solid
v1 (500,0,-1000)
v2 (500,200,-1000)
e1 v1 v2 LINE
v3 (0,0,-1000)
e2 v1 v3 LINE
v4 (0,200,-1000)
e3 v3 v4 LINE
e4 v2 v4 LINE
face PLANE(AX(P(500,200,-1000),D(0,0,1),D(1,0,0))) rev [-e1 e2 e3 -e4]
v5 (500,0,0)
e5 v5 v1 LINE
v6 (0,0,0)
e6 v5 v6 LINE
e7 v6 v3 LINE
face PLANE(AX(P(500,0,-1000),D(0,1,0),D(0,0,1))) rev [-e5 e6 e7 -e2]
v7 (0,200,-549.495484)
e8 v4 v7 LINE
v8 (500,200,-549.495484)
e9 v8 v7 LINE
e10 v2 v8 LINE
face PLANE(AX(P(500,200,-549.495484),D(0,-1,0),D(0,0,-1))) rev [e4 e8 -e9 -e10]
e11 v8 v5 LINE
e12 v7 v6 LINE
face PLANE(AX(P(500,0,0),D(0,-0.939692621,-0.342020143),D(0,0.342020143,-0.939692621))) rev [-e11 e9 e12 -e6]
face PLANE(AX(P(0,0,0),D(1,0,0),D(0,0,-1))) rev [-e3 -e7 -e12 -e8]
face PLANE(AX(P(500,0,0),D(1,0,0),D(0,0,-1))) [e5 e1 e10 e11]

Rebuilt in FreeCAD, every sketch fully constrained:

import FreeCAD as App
import Part
import Sketcher
Q = App.Units.Quantity


def add_polygon(sketch, points):
    """Adds a closed chain of lines whose ends are joined by coincident constraints."""
    first, n = sketch.GeometryCount, len(points)
    for a, b in zip(points, points[1:] + points[:1]):
        sketch.addGeometry(Part.LineSegment(App.Vector(*a, 0), App.Vector(*b, 0)), False)
    for i in range(n):
        sketch.addConstraint(Sketcher.Constraint("Coincident", first + i, 2, first + (i + 1) % n, 1))

doc = App.newDocument("Part")
body = doc.addObject("PartDesign::Body", "Body")

# Sketch on YZ plane
sketch1 = body.newObject("Sketcher::SketchObject", "Sketch")
sketch1.AttachmentSupport = (doc.getObject("YZ_Plane"), [""])
sketch1.MapMode = "FlatFace"
add_polygon(sketch1, [(200, -549.495484), (0, 0), (0, -1000), (200, -1000)])  # lines 0-3
sketch1.addConstraint([
    Sketcher.Constraint("Vertical", 1),
    Sketcher.Constraint("Horizontal", 2),
    Sketcher.Constraint("Vertical", 3),
    Sketcher.Constraint("Coincident", 0, 2, -1, 1),
    Sketcher.Constraint("DistanceX", 2, 1, 2, 2, 200.0),
    Sketcher.Constraint("DistanceY", 1, 2, 1, 1, 1000.0),
    Sketcher.Constraint("Angle", 0, Q("110 deg")),
])
pad1 = body.newObject("PartDesign::Pad", "Pad")
pad1.Profile = sketch1
pad1.Length = 500

doc.recompute()
